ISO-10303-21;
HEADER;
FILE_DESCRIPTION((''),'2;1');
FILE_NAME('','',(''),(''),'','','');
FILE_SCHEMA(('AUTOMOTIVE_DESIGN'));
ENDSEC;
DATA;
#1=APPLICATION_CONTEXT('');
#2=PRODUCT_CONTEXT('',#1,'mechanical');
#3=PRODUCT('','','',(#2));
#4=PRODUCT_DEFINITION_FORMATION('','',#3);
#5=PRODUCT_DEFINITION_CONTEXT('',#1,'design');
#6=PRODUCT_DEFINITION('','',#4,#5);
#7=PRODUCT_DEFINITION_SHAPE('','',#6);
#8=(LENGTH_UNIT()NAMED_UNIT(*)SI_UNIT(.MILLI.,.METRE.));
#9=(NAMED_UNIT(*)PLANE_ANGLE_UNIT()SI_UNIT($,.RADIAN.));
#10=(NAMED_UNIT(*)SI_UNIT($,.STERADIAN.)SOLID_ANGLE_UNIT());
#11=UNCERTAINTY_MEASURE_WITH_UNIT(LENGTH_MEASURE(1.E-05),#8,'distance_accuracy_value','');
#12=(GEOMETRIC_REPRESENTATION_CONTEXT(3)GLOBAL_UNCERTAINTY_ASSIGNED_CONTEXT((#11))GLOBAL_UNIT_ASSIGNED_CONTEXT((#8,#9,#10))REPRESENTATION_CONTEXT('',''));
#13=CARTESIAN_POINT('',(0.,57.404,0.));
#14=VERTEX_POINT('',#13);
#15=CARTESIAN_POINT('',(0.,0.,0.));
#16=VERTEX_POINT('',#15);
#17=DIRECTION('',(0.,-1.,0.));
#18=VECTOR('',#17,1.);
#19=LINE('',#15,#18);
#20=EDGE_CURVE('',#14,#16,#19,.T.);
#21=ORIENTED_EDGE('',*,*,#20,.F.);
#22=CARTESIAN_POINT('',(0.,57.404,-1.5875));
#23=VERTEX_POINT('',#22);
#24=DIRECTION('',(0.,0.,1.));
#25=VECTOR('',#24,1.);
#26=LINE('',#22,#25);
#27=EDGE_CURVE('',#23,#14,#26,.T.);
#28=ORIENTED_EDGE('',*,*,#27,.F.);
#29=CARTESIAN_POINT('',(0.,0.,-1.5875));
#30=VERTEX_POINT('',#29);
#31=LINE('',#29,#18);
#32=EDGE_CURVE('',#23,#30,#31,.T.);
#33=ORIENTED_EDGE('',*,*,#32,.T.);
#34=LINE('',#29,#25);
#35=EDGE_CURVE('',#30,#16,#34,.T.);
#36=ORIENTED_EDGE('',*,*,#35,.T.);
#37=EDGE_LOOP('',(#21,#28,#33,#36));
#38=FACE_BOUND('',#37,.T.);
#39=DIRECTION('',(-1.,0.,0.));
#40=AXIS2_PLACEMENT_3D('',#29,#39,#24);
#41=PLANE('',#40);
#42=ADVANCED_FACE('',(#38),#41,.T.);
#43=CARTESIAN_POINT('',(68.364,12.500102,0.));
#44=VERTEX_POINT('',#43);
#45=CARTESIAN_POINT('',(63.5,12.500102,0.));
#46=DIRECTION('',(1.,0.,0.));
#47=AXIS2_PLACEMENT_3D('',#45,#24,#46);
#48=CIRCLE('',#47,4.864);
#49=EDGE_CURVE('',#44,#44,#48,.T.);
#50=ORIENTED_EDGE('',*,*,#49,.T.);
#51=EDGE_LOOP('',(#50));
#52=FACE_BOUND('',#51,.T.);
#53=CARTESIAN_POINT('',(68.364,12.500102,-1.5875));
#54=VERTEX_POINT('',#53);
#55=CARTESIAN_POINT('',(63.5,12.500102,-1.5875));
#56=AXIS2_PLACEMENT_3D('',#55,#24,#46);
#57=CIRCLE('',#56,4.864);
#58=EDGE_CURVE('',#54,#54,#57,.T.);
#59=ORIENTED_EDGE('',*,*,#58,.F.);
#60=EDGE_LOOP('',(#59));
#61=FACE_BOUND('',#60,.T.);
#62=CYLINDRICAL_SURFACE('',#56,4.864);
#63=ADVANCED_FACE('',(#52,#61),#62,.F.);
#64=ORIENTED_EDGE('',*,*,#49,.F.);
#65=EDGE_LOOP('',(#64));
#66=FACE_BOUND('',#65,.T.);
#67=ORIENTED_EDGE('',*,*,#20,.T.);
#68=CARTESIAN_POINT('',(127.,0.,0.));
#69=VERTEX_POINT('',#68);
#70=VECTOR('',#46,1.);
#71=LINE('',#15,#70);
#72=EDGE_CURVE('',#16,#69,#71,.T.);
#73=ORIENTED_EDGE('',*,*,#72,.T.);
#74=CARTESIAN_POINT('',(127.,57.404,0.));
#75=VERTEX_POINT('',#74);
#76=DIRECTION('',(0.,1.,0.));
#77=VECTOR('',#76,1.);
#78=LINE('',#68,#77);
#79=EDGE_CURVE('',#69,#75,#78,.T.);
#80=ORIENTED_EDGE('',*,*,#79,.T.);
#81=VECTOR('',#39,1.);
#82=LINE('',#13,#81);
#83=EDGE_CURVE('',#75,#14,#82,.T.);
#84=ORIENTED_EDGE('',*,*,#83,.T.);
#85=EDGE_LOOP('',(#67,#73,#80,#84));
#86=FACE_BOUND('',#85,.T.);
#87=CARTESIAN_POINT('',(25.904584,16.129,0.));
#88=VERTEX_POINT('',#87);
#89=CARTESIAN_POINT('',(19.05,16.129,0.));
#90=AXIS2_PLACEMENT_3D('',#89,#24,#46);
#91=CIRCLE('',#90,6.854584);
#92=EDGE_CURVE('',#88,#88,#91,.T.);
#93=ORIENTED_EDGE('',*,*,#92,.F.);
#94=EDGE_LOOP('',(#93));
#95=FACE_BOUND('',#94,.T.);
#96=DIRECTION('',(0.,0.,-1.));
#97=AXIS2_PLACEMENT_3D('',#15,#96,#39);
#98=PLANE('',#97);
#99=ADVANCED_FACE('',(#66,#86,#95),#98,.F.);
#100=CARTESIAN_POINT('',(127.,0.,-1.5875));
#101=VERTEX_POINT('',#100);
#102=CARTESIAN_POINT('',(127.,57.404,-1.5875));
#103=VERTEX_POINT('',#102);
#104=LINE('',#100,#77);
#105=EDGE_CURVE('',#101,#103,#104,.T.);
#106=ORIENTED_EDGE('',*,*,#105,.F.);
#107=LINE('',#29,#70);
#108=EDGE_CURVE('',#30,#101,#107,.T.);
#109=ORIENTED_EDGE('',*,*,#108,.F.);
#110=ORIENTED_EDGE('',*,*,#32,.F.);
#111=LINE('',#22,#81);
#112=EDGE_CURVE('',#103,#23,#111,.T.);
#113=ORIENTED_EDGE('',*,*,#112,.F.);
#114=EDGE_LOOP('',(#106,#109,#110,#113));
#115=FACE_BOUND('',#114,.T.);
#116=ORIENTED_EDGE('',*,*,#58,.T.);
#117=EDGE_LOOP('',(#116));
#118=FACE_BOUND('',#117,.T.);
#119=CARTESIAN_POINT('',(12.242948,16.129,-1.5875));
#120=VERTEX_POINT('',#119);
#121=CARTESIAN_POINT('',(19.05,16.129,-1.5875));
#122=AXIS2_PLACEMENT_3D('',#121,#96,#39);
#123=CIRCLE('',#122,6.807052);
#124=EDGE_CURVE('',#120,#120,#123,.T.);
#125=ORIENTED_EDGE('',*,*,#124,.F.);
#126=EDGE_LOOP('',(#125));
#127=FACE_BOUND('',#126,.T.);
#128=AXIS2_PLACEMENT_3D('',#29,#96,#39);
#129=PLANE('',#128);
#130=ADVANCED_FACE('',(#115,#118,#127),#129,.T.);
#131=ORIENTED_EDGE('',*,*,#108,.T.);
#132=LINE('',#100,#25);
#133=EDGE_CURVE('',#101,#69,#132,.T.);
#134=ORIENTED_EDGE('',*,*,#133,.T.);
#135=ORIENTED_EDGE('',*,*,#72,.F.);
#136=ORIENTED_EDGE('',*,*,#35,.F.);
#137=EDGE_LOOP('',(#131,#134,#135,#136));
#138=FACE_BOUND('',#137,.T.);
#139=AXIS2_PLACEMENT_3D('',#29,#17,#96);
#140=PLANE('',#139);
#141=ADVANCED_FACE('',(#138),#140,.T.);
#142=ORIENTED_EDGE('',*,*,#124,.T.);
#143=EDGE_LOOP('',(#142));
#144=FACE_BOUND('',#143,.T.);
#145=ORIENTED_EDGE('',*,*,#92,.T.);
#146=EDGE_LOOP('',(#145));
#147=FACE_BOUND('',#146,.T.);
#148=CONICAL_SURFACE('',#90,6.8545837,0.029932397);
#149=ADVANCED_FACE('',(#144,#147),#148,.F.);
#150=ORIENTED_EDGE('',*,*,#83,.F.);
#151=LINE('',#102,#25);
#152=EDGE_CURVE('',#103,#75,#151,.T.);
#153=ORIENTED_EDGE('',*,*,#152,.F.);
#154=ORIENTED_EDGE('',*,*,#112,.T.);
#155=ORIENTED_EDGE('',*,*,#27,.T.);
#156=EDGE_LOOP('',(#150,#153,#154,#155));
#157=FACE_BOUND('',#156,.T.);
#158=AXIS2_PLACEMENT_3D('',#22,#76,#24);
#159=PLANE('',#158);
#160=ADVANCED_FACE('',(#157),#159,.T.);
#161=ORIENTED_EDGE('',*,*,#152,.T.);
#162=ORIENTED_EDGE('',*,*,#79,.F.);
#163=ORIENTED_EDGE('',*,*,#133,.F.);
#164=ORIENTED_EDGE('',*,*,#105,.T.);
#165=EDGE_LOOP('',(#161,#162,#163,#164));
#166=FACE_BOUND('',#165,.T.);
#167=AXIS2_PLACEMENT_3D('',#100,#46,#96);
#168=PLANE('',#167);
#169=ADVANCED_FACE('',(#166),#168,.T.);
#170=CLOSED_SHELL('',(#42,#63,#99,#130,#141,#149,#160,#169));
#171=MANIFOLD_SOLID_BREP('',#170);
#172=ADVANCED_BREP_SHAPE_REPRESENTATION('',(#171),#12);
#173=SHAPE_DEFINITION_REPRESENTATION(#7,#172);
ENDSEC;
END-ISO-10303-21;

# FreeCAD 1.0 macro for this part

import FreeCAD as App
import Part
import Sketcher

V = App.Vector
Q = App.Units.Quantity


def add_polygon(sketch, points):
    """Adds a closed chain of lines whose ends are joined by coincident constraints."""
    first, n = sketch.GeometryCount, len(points)
    for a, b in zip(points, points[1:] + points[:1]):
        sketch.addGeometry(Part.LineSegment(App.Vector(*a, 0), App.Vector(*b, 0)), False)
    for i in range(n):
        sketch.addConstraint(Sketcher.Constraint("Coincident", first + i, 2, first + (i + 1) % n, 1))

doc = App.newDocument("Part")
body = doc.addObject("PartDesign::Body", "Body")

# Sketch on XY plane
sketch1 = body.newObject("Sketcher::SketchObject", "Sketch")
sketch1.AttachmentSupport = (doc.getObject("XY_Plane"), [""])
sketch1.MapMode = "FlatFace"
add_polygon(sketch1, [(0, 57.404), (0, 0), (127, 0), (127, 57.404)])  # lines 0-3
sketch1.addGeometry(Part.Circle(V(63.5, 12.500102, 0), V(0, 0, 1), 4.864), False)  # 4
sketch1.addConstraint([
    Sketcher.Constraint("Vertical", 0),
    Sketcher.Constraint("Horizontal", 1),
    Sketcher.Constraint("Vertical", 2),
    Sketcher.Constraint("Horizontal", 3),
    Sketcher.Constraint("Coincident", 0, 2, -1, 1),
    Sketcher.Constraint("DistanceX", 1, 1, 1, 2, Q("5 in")),
    Sketcher.Constraint("DistanceY", 0, 2, 0, 1, Q("2.26 in")),
    Sketcher.Constraint("DistanceX", -1, 1, 4, 3, Q("2.5 in")),
    Sketcher.Constraint("Diameter", 4, Q("9.728 mm")),
    Sketcher.Constraint("DistanceY", 4, 3, 2, 2, Q("44.903898 mm")),
])
pad1 = body.newObject("PartDesign::Pad", "Pad")
pad1.Profile = sketch1
pad1.Length = Q("0.0625 in")
pad1.Reversed = True

# Sketch on YZ plane
sketch2 = body.newObject("Sketcher::SketchObject", "Sketch001")
sketch2.AttachmentSupport = (doc.getObject("YZ_Plane"), [""])
sketch2.MapMode = "FlatFace"
sketch2.AttachmentOffset = App.Placement(V(0, 0, 0.75 * 25.4), App.Rotation())
add_polygon(sketch2, [(16.129, -1.5875), (16.129, 0), (9.274416, 0), (9.571015, -9.906), (10.5664, -9.906), (10.5664, -1.5875)])  # lines 0-5
sketch2.addGeometry(Part.LineSegment(V(16.129, 0, 0), V(16.129, -9.906, 0)), True)  # axis
sketch2.addConstraint([
    Sketcher.Constraint("Vertical", 0),
    Sketcher.Constraint("Horizontal", 1),
    Sketcher.Constraint("Horizontal", 3),
    Sketcher.Constraint("Vertical", 4),
    Sketcher.Constraint("Horizontal", 5),
    Sketcher.Constraint("Vertical", 6),
    Sketcher.Constraint("Coincident", 6, 1, 0, 2),
    Sketcher.Constraint("PointOnObject", 0, 2, -1),
    Sketcher.Constraint("Horizontal", 3, 2, 6, 2),
    Sketcher.Constraint("DistanceY", 6, 2, 6, 1, Q("0.39 in")),
    Sketcher.Constraint("DistanceX", 5, 1, 5, 2, Q("0.219 in")),
    Sketcher.Constraint("DistanceY", 0, 1, 0, 2, Q("0.0625 in")),
    Sketcher.Constraint("DistanceX", -1, 1, 0, 2, Q("0.635 in")),
    Sketcher.Constraint("DistanceX", 1, 2, 2, 2, Q("0.296599 mm")),
    Sketcher.Constraint("DistanceX", 1, 2, 1, 1, Q("6.854584 mm")),
])
groove = body.newObject("PartDesign::Groove", "Groove")
groove.Profile = sketch2
groove.ReferenceAxis = (sketch2, ["Axis0"])
groove.Angle = 360

doc.recompute()
